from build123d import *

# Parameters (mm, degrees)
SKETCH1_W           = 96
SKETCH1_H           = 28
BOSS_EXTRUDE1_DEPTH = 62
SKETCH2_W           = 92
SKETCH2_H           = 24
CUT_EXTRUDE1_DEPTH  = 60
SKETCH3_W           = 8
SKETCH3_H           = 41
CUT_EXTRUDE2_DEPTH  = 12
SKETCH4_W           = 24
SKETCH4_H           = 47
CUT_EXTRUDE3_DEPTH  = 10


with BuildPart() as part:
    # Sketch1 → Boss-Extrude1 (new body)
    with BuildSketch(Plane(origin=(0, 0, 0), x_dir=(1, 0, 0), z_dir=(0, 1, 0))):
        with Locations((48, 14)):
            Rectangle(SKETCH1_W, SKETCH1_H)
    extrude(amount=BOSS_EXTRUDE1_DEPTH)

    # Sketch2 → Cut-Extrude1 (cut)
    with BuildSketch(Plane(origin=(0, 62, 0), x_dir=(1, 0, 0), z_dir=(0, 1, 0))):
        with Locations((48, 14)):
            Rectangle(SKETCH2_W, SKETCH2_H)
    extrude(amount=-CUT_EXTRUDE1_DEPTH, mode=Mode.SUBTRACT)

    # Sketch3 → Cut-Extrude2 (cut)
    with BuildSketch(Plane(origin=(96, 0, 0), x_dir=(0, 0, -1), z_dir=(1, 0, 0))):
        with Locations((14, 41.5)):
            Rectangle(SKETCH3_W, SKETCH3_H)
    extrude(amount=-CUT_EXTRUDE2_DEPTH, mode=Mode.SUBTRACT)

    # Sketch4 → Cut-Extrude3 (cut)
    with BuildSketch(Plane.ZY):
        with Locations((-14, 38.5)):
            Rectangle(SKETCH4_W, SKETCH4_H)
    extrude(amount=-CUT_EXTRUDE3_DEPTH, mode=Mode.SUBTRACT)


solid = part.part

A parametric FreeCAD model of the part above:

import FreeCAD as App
import Part
import Sketcher

V = App.Vector
Q = App.Units.Quantity

doc = App.newDocument("Part")
body = doc.addObject("PartDesign::Body", "Body")

sketch1 = body.newObject("Sketcher::SketchObject", "Sketch")
sketch1.AttachmentSupport = (doc.getObject("XZ_Plane"), [""])
sketch1.MapMode = "FlatFace"
sketch1.addGeometry([
    Part.LineSegment(V(0, -28, 0), V(0, 0, 0)),
    Part.LineSegment(V(0, 0, 0), V(96, 0, 0)),
    Part.LineSegment(V(96, 0, 0), V(96, -28, 0)),
    Part.LineSegment(V(96, -28, 0), V(0, -28, 0)),
], False)
sketch1.addConstraint([
    Sketcher.Constraint("Coincident", 0, 2, 1, 1),
    Sketcher.Constraint("Coincident", 1, 2, 2, 1),
    Sketcher.Constraint("Coincident", 2, 2, 3, 1),
    Sketcher.Constraint("Coincident", 3, 2, 0, 1),
    Sketcher.Constraint("Vertical", 0),
    Sketcher.Constraint("Horizontal", 1),
    Sketcher.Constraint("Vertical", 2),
    Sketcher.Constraint("Horizontal", 3),
    Sketcher.Constraint("Coincident", 0, 2, -1, 1),
    Sketcher.Constraint("DistanceX", 1, 1, 1, 2, Q("96 mm")),
    Sketcher.Constraint("DistanceY", 0, 1, 0, 2, Q("28 mm")),
])
pad1 = body.newObject("PartDesign::Pad", "Pad")
pad1.Profile = sketch1
pad1.Length = 62
pad1.Reversed = True

sketch2 = body.newObject("Sketcher::SketchObject", "Sketch001")
sketch2.AttachmentSupport = (doc.getObject("XZ_Plane"), [""])
sketch2.MapMode = "FlatFace"
sketch2.AttachmentOffset = App.Placement(V(0, 0, -62), App.Rotation())
sketch2.addGeometry([
    Part.LineSegment(V(2, -26, 0), V(2, -2, 0)),
    Part.LineSegment(V(2, -2, 0), V(94, -2, 0)),
    Part.LineSegment(V(94, -2, 0), V(94, -26, 0)),
    Part.LineSegment(V(94, -26, 0), V(2, -26, 0)),
], False)
sketch2.addConstraint([
    Sketcher.Constraint("Coincident", 0, 2, 1, 1),
    Sketcher.Constraint("Coincident", 1, 2, 2, 1),
    Sketcher.Constraint("Coincident", 2, 2, 3, 1),
    Sketcher.Constraint("Coincident", 3, 2, 0, 1),
    Sketcher.Constraint("Vertical", 0),
    Sketcher.Constraint("Horizontal", 1),
    Sketcher.Constraint("Vertical", 2),
    Sketcher.Constraint("Horizontal", 3),
    Sketcher.Constraint("DistanceX", 1, 1, 1, 2, Q("92 mm")),
    Sketcher.Constraint("DistanceY", 0, 1, 0, 2, Q("24 mm")),
    Sketcher.Constraint("DistanceX", -1, 1, 0, 2, Q("2 mm")),
    Sketcher.Constraint("DistanceY", 0, 2, -1, 1, Q("2 mm")),
])
pocket1 = body.newObject("PartDesign::Pocket", "Pocket")
pocket1.Profile = sketch2
pocket1.Length = 60
pocket1.Reversed = True

sketch3 = body.newObject("Sketcher::SketchObject", "Sketch002")
sketch3.AttachmentSupport = (doc.getObject("YZ_Plane"), [""])
sketch3.MapMode = "FlatFace"
sketch3.AttachmentOffset = App.Placement(V(0, 0, 96), App.Rotation())
sketch3.addGeometry([
    Part.LineSegment(V(62, -10, 0), V(21, -10, 0)),
    Part.LineSegment(V(21, -10, 0), V(21, -18, 0)),
    Part.LineSegment(V(21, -18, 0), V(62, -18, 0)),
    Part.LineSegment(V(62, -18, 0), V(62, -10, 0)),
], False)
sketch3.addConstraint([
    Sketcher.Constraint("Coincident", 0, 2, 1, 1),
    Sketcher.Constraint("Coincident", 1, 2, 2, 1),
    Sketcher.Constraint("Coincident", 2, 2, 3, 1),
    Sketcher.Constraint("Coincident", 3, 2, 0, 1),
    Sketcher.Constraint("Horizontal", 0),
    Sketcher.Constraint("Vertical", 1),
    Sketcher.Constraint("Horizontal", 2),
    Sketcher.Constraint("Vertical", 3),
    Sketcher.Constraint("DistanceX", 0, 2, 0, 1, Q("41 mm")),
    Sketcher.Constraint("DistanceY", 1, 2, 1, 1, Q("8 mm")),
    Sketcher.Constraint("DistanceX", -1, 1, 0, 2, Q("21 mm")),
    Sketcher.Constraint("DistanceY", 0, 2, -1, 1, Q("10 mm")),
])
pocket2 = body.newObject("PartDesign::Pocket", "Pocket001")
pocket2.Profile = sketch3
pocket2.Length = 12

sketch4 = body.newObject("Sketcher::SketchObject", "Sketch003")
sketch4.AttachmentSupport = (doc.getObject("YZ_Plane"), [""])
sketch4.MapMode = "FlatFace"
sketch4.addGeometry([
    Part.LineSegment(V(62, -26, 0), V(15, -26, 0)),
    Part.LineSegment(V(15, -26, 0), V(15, -2, 0)),
    Part.LineSegment(V(15, -2, 0), V(62, -2, 0)),
    Part.LineSegment(V(62, -2, 0), V(62, -26, 0)),
], False)
sketch4.addConstraint([
    Sketcher.Constraint("Coincident", 0, 2, 1, 1),
    Sketcher.Constraint("Coincident", 1, 2, 2, 1),
    Sketcher.Constraint("Coincident", 2, 2, 3, 1),
    Sketcher.Constraint("Coincident", 3, 2, 0, 1),
    Sketcher.Constraint("Horizontal", 0),
    Sketcher.Constraint("Vertical", 1),
    Sketcher.Constraint("Horizontal", 2),
    Sketcher.Constraint("Vertical", 3),
    Sketcher.Constraint("DistanceX", 0, 2, 0, 1, Q("47 mm")),
    Sketcher.Constraint("DistanceY", 1, 1, 1, 2, Q("24 mm")),
    Sketcher.Constraint("DistanceX", -1, 1, 0, 2, Q("15 mm")),
    Sketcher.Constraint("DistanceY", 0, 2, -1, 1, Q("26 mm")),
])
pocket3 = body.newObject("PartDesign::Pocket", "Pocket002")
pocket3.Profile = sketch4
pocket3.Length = 10
pocket3.Reversed = True

doc.recompute()
